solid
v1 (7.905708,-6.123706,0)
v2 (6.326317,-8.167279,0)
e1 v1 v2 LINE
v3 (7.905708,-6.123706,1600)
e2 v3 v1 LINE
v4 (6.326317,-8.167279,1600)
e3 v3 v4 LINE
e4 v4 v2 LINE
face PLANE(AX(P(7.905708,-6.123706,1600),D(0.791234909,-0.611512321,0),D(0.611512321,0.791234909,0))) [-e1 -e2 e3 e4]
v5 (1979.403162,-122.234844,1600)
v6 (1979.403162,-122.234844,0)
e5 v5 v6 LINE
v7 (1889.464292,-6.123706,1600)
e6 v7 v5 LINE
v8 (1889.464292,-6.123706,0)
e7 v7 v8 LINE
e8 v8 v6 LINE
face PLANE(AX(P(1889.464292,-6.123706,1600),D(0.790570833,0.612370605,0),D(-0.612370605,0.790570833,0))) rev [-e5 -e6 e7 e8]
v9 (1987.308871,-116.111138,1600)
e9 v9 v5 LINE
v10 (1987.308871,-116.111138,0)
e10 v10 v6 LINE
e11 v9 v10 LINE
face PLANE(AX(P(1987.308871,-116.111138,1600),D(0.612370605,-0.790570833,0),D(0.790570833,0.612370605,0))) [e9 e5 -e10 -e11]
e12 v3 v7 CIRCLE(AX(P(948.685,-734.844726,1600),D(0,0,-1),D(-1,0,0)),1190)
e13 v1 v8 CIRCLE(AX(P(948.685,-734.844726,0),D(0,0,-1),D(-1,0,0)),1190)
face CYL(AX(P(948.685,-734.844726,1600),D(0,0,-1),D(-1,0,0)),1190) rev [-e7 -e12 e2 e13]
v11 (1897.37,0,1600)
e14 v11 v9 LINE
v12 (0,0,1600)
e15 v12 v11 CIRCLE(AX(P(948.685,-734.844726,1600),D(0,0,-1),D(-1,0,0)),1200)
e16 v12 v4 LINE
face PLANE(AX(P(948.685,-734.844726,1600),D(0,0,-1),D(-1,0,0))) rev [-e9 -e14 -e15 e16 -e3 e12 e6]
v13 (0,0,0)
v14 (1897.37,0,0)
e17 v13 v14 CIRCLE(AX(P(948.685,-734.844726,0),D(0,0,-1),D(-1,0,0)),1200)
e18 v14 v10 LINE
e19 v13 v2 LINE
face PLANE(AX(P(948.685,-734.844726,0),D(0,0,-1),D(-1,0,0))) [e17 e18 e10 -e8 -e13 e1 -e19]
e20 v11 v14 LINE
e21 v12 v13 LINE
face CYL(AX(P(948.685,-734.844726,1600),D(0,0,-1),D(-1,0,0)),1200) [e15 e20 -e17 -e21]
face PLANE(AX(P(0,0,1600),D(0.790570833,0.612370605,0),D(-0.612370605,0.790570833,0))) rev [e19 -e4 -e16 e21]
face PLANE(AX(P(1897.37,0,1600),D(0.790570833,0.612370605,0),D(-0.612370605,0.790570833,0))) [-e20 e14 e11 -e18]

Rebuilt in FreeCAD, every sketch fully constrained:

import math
import FreeCAD as App
import Part
import Sketcher

V = App.Vector

doc = App.newDocument("Part")
body = doc.addObject("PartDesign::Body", "Body")

# Sketch on XY plane
sketch1 = doc.addObject("Sketcher::SketchObject", "Sketch")
body.addObject(sketch1)
sketch1.AttachmentSupport = (doc.XY_Plane, [""])
sketch1.MapMode = "FlatFace"
sketch1.addGeometry([
    Part.LineSegment(V(1987.3, -116.1, 0), V(1897.4, 0, 0)),  # 0
    Part.ArcOfCircle(Part.Circle(V(948.7, -734.8, 0), V(0, 0, 1), 1200), math.radians(38), math.radians(142)),  # 1
    Part.LineSegment(V(0, 0, 0), V(6.3, -8.2, 0)),  # 2
    Part.LineSegment(V(6.3, -8.2, 0), V(7.9, -6.1, 0)),  # 3
    Part.ArcOfCircle(Part.Circle(V(948.7, -734.8, 0), V(0, 0, 1), 1190), math.radians(38), math.radians(142)),  # 4
    Part.LineSegment(V(1889.5, -6.1, 0), V(1979.4, -122.2, 0)),  # 5
    Part.LineSegment(V(1979.4, -122.2, 0), V(1987.3, -116.1, 0)),  # 6
], False)
sketch1.addConstraint([
    Sketcher.Constraint("Tangent", 0, 2, 1, 1),
    Sketcher.Constraint("Coincident", 1, 2, 2, 1),
    Sketcher.Constraint("Coincident", 2, 2, 3, 1),
    Sketcher.Constraint("Coincident", 3, 2, 4, 2),
    Sketcher.Constraint("Tangent", 4, 1, 5, 1),
    Sketcher.Constraint("Coincident", 5, 2, 6, 1),
    Sketcher.Constraint("Coincident", 6, 2, 0, 1),
    Sketcher.Constraint("Coincident", 4, 3, 1, 3),
    Sketcher.Constraint("PointOnObject", 0, 2, -1),
    Sketcher.Constraint("Parallel", 0, 2),
    Sketcher.Constraint("Parallel", 2, 5),
    Sketcher.Constraint("Perpendicular", 5, 6),
    Sketcher.Constraint("Radius", 1, 1200.0),
    Sketcher.Constraint("Radius", 4, 1190.0),
    Sketcher.Constraint("Distance", 0, 146.87),
    Sketcher.Constraint("DistanceX", -1, 1, 0, 2, 1897.37),
    Sketcher.Constraint("DistanceX", -1, 1, 1, 3, 948.685),
    Sketcher.Constraint("DistanceY", 2, 2, -1, 1, 8.167279),
    Sketcher.Constraint("DistanceX", -1, 1, 3, 2, 7.905708),
    Sketcher.Constraint("DistanceX", 2, 2, 3, 2, 1.579392),
])
pad1 = doc.addObject("PartDesign::Pad", "Pad")
body.addObject(pad1)
pad1.Profile = sketch1
pad1.Length = 1600

doc.recompute()
